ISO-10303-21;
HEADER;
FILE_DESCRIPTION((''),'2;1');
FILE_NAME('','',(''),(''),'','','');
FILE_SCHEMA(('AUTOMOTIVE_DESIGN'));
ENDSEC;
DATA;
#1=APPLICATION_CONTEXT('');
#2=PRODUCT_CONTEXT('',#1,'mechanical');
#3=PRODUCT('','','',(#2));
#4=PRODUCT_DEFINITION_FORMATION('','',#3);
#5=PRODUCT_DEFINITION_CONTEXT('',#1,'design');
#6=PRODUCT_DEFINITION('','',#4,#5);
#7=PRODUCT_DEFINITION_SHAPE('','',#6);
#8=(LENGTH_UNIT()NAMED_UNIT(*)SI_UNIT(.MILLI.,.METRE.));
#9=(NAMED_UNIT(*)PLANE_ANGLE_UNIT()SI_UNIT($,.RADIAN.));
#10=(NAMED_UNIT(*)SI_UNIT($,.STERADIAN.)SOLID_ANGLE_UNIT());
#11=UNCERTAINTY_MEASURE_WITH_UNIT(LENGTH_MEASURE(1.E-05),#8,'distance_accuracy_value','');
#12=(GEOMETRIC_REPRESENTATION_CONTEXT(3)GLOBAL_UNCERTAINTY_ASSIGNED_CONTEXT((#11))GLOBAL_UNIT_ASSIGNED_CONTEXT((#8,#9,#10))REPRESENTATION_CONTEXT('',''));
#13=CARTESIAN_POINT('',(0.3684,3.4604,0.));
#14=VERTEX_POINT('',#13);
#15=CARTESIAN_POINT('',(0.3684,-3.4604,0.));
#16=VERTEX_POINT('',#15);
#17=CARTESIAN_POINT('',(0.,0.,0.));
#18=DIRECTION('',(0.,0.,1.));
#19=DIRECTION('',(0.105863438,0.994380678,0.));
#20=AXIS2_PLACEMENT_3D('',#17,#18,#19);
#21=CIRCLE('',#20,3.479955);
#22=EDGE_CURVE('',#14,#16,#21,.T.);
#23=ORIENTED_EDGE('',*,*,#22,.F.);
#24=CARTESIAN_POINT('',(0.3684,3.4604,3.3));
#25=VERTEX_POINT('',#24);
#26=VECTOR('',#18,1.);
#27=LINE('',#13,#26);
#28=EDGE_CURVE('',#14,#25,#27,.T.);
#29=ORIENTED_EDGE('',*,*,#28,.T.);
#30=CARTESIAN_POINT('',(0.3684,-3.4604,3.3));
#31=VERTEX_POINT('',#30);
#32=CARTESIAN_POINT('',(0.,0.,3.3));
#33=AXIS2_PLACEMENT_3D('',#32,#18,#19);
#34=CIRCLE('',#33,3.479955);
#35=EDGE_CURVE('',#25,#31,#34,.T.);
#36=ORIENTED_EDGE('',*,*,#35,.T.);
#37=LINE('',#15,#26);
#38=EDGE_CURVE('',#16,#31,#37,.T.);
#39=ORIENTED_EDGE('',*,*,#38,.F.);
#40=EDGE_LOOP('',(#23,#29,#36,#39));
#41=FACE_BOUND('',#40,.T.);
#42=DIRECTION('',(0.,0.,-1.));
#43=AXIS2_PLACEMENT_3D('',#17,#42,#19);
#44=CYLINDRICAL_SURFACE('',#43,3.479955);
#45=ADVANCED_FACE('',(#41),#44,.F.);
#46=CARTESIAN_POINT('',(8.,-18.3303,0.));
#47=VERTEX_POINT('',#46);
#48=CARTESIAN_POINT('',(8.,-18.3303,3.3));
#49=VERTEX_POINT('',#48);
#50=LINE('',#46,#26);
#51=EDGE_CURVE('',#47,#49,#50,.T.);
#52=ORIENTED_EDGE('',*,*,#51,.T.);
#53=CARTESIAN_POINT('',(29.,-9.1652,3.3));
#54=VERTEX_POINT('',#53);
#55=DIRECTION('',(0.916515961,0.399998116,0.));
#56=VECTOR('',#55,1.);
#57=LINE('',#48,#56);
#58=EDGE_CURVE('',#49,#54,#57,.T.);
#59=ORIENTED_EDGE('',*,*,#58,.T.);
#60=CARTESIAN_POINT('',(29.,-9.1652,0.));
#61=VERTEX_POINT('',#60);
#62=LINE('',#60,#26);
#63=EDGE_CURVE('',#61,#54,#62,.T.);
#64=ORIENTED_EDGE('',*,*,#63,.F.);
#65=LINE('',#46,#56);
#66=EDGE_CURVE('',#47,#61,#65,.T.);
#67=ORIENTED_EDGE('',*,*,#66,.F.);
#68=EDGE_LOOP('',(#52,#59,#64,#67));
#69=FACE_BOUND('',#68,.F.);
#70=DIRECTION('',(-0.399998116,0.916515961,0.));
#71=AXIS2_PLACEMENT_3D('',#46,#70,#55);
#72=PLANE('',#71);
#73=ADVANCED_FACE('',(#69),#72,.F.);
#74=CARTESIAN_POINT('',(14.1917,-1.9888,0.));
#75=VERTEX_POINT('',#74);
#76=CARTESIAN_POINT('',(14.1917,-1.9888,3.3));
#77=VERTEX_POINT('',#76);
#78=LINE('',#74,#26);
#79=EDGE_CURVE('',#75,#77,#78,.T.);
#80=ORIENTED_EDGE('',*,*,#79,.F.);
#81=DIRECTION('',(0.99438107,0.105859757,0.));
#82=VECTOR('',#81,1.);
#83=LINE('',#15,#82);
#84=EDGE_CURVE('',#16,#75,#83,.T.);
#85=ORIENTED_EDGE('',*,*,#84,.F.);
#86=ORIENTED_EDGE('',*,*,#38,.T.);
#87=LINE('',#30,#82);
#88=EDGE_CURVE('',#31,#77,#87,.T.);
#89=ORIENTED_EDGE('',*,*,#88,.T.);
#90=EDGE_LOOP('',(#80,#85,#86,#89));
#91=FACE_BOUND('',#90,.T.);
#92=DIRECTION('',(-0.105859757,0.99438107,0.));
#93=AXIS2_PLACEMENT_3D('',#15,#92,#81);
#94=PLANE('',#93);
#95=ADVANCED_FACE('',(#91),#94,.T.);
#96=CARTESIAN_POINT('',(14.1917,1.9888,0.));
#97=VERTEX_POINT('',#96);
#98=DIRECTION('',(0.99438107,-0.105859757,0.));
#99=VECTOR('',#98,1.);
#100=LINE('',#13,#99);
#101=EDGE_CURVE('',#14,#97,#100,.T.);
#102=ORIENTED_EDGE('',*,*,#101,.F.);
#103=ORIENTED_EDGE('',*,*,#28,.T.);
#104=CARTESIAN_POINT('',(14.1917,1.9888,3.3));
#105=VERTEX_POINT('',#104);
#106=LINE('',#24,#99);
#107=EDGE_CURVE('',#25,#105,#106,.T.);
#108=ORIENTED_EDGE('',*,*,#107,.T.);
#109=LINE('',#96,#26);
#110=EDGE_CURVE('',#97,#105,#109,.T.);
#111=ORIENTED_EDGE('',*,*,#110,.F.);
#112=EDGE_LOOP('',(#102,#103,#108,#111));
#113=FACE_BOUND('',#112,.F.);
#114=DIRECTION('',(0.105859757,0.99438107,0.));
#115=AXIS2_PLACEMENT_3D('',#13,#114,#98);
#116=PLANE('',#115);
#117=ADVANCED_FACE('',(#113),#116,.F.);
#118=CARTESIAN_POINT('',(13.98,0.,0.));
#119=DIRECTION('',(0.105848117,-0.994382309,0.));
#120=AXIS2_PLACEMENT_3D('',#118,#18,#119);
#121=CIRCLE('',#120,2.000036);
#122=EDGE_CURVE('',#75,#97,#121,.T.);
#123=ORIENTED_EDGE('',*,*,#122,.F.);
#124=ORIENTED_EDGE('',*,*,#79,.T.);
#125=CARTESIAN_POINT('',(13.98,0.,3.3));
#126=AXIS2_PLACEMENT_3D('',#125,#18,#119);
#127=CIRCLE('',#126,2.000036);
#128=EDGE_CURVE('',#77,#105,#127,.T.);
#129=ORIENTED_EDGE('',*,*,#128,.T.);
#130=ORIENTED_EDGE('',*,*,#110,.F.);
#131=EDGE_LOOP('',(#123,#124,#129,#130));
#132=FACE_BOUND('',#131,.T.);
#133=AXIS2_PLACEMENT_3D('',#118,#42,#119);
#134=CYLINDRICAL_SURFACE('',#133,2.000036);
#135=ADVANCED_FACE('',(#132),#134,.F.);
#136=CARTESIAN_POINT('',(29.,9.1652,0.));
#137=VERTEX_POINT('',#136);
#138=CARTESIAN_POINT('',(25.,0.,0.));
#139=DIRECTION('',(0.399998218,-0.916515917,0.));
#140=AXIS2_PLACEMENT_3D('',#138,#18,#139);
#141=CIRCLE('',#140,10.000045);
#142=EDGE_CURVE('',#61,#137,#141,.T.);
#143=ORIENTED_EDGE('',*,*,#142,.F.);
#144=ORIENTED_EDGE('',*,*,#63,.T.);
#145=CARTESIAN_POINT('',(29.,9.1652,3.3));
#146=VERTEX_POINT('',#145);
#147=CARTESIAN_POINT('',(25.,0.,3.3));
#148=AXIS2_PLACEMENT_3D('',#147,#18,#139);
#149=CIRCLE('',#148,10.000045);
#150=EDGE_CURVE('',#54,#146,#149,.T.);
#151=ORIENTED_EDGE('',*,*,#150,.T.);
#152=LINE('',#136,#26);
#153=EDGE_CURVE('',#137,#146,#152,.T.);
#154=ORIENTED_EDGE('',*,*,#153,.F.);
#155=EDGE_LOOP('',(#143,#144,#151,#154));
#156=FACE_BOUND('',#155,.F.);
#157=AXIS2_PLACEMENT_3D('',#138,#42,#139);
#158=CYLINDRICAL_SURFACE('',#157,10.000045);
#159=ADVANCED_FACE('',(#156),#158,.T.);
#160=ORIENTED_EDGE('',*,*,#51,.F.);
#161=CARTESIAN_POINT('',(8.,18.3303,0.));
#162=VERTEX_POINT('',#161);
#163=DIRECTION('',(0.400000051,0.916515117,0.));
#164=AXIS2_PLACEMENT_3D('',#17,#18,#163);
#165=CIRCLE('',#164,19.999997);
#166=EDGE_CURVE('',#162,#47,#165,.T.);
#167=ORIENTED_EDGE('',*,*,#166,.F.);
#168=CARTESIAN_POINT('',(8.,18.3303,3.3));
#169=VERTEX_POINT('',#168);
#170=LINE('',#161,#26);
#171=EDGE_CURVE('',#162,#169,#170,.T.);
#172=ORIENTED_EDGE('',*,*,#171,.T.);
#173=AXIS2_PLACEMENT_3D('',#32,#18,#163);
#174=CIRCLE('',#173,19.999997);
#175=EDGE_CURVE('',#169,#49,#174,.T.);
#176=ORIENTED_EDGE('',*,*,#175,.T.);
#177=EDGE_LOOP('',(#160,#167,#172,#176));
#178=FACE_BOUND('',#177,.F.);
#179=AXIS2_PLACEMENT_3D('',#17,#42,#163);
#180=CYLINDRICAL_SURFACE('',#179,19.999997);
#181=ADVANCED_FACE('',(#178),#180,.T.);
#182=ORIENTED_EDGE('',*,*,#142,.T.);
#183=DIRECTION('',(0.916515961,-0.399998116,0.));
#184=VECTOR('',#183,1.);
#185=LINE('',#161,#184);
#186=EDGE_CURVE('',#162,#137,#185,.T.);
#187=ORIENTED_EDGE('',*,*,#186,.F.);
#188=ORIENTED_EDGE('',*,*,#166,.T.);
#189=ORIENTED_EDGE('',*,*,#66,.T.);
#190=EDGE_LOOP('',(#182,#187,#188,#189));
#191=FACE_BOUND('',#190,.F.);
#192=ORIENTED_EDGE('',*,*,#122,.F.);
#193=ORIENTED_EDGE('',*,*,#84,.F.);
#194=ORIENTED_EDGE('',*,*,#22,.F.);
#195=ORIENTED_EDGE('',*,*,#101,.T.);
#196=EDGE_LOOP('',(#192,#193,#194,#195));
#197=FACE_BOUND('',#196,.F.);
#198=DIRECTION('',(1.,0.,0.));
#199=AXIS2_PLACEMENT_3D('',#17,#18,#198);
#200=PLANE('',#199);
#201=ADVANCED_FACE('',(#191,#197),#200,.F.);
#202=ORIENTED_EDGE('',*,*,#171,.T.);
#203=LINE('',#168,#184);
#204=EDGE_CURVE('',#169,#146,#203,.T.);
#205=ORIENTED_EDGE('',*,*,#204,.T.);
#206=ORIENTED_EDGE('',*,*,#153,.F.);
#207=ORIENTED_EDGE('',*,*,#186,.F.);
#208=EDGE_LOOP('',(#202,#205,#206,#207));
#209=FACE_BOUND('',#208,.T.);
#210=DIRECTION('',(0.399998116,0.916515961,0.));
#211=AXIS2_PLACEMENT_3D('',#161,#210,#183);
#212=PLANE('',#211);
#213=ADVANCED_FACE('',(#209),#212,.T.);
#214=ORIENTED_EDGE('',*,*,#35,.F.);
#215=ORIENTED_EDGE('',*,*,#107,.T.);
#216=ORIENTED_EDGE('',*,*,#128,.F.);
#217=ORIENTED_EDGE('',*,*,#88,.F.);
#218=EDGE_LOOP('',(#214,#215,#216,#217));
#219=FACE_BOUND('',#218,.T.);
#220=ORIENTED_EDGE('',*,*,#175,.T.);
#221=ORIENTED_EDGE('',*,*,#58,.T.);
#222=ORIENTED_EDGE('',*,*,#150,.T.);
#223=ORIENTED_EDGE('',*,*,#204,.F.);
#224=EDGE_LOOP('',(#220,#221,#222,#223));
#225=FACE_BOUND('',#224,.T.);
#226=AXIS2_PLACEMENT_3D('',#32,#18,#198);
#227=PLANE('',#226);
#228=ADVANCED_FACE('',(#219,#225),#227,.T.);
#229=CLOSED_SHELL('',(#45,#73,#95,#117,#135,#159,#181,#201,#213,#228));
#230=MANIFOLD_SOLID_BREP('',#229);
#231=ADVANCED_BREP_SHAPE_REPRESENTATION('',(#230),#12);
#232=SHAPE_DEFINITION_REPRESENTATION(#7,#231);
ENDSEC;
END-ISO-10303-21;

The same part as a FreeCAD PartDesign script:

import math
import FreeCAD as App
import Part
import Sketcher

V = App.Vector

doc = App.newDocument("Part")
body = doc.addObject("PartDesign::Body", "Body")

# Sketch on XY plane
sketch1 = body.newObject("Sketcher::SketchObject", "Sketch")
sketch1.AttachmentSupport = (doc.getObject("XY_Plane"), [""])
sketch1.MapMode = "FlatFace"
sketch1.addGeometry([
    Part.ArcOfCircle(Part.Circle(V(0, 0, 0), V(0, 0, 1), 20), math.radians(66), math.radians(294)),  # 0
    Part.LineSegment(V(8, -18.3, 0), V(29, -9.2, 0)),  # 1
    Part.ArcOfCircle(Part.Circle(V(25, 0, 0), V(0, 0, 1), 10), math.radians(-66), math.radians(66)),  # 2
    Part.LineSegment(V(29, 9.2, 0), V(8, 18.3, 0)),  # 3
    Part.LineSegment(V(14.2, -2, 0), V(0.4, -3.5, 0)),  # 4
    Part.ArcOfCircle(Part.Circle(V(0, 0, 0), V(0, 0, 1), 3.5), math.radians(84), math.radians(276)),  # 5
    Part.LineSegment(V(0.4, 3.5, 0), V(14.2, 2, 0)),  # 6
    Part.ArcOfCircle(Part.Circle(V(14, 0, 0), V(0, 0, 1), 2), math.radians(-84), math.radians(84)),  # 7
], False)
sketch1.addConstraint([
    Sketcher.Constraint("Tangent", 0, 2, 1, 1),
    Sketcher.Constraint("Tangent", 1, 2, 2, 1),
    Sketcher.Constraint("Tangent", 2, 2, 3, 1),
    Sketcher.Constraint("Tangent", 3, 2, 0, 1),
    Sketcher.Constraint("Tangent", 4, 2, 5, 2),
    Sketcher.Constraint("Tangent", 5, 1, 6, 1),
    Sketcher.Constraint("Tangent", 6, 2, 7, 2),
    Sketcher.Constraint("Tangent", 7, 1, 4, 1),
    Sketcher.Constraint("Coincident", 0, 3, -1, 1),
    Sketcher.Constraint("Coincident", 5, 3, -1, 1),
    Sketcher.Constraint("PointOnObject", 2, 3, -1),
    Sketcher.Constraint("PointOnObject", 7, 3, -1),
    Sketcher.Constraint("Radius", 0, 20.0),
    Sketcher.Constraint("Radius", 2, 10.0),
    Sketcher.Constraint("Radius", 7, 2.0),
    Sketcher.Constraint("Radius", 5, 3.48),
    Sketcher.Constraint("DistanceX", -1, 1, 2, 3, 25.0),
    Sketcher.Constraint("DistanceX", -1, 1, 7, 3, 13.98),
])
pad1 = body.newObject("PartDesign::Pad", "Pad")
pad1.Profile = sketch1
pad1.Length = 3.3

doc.recompute()
